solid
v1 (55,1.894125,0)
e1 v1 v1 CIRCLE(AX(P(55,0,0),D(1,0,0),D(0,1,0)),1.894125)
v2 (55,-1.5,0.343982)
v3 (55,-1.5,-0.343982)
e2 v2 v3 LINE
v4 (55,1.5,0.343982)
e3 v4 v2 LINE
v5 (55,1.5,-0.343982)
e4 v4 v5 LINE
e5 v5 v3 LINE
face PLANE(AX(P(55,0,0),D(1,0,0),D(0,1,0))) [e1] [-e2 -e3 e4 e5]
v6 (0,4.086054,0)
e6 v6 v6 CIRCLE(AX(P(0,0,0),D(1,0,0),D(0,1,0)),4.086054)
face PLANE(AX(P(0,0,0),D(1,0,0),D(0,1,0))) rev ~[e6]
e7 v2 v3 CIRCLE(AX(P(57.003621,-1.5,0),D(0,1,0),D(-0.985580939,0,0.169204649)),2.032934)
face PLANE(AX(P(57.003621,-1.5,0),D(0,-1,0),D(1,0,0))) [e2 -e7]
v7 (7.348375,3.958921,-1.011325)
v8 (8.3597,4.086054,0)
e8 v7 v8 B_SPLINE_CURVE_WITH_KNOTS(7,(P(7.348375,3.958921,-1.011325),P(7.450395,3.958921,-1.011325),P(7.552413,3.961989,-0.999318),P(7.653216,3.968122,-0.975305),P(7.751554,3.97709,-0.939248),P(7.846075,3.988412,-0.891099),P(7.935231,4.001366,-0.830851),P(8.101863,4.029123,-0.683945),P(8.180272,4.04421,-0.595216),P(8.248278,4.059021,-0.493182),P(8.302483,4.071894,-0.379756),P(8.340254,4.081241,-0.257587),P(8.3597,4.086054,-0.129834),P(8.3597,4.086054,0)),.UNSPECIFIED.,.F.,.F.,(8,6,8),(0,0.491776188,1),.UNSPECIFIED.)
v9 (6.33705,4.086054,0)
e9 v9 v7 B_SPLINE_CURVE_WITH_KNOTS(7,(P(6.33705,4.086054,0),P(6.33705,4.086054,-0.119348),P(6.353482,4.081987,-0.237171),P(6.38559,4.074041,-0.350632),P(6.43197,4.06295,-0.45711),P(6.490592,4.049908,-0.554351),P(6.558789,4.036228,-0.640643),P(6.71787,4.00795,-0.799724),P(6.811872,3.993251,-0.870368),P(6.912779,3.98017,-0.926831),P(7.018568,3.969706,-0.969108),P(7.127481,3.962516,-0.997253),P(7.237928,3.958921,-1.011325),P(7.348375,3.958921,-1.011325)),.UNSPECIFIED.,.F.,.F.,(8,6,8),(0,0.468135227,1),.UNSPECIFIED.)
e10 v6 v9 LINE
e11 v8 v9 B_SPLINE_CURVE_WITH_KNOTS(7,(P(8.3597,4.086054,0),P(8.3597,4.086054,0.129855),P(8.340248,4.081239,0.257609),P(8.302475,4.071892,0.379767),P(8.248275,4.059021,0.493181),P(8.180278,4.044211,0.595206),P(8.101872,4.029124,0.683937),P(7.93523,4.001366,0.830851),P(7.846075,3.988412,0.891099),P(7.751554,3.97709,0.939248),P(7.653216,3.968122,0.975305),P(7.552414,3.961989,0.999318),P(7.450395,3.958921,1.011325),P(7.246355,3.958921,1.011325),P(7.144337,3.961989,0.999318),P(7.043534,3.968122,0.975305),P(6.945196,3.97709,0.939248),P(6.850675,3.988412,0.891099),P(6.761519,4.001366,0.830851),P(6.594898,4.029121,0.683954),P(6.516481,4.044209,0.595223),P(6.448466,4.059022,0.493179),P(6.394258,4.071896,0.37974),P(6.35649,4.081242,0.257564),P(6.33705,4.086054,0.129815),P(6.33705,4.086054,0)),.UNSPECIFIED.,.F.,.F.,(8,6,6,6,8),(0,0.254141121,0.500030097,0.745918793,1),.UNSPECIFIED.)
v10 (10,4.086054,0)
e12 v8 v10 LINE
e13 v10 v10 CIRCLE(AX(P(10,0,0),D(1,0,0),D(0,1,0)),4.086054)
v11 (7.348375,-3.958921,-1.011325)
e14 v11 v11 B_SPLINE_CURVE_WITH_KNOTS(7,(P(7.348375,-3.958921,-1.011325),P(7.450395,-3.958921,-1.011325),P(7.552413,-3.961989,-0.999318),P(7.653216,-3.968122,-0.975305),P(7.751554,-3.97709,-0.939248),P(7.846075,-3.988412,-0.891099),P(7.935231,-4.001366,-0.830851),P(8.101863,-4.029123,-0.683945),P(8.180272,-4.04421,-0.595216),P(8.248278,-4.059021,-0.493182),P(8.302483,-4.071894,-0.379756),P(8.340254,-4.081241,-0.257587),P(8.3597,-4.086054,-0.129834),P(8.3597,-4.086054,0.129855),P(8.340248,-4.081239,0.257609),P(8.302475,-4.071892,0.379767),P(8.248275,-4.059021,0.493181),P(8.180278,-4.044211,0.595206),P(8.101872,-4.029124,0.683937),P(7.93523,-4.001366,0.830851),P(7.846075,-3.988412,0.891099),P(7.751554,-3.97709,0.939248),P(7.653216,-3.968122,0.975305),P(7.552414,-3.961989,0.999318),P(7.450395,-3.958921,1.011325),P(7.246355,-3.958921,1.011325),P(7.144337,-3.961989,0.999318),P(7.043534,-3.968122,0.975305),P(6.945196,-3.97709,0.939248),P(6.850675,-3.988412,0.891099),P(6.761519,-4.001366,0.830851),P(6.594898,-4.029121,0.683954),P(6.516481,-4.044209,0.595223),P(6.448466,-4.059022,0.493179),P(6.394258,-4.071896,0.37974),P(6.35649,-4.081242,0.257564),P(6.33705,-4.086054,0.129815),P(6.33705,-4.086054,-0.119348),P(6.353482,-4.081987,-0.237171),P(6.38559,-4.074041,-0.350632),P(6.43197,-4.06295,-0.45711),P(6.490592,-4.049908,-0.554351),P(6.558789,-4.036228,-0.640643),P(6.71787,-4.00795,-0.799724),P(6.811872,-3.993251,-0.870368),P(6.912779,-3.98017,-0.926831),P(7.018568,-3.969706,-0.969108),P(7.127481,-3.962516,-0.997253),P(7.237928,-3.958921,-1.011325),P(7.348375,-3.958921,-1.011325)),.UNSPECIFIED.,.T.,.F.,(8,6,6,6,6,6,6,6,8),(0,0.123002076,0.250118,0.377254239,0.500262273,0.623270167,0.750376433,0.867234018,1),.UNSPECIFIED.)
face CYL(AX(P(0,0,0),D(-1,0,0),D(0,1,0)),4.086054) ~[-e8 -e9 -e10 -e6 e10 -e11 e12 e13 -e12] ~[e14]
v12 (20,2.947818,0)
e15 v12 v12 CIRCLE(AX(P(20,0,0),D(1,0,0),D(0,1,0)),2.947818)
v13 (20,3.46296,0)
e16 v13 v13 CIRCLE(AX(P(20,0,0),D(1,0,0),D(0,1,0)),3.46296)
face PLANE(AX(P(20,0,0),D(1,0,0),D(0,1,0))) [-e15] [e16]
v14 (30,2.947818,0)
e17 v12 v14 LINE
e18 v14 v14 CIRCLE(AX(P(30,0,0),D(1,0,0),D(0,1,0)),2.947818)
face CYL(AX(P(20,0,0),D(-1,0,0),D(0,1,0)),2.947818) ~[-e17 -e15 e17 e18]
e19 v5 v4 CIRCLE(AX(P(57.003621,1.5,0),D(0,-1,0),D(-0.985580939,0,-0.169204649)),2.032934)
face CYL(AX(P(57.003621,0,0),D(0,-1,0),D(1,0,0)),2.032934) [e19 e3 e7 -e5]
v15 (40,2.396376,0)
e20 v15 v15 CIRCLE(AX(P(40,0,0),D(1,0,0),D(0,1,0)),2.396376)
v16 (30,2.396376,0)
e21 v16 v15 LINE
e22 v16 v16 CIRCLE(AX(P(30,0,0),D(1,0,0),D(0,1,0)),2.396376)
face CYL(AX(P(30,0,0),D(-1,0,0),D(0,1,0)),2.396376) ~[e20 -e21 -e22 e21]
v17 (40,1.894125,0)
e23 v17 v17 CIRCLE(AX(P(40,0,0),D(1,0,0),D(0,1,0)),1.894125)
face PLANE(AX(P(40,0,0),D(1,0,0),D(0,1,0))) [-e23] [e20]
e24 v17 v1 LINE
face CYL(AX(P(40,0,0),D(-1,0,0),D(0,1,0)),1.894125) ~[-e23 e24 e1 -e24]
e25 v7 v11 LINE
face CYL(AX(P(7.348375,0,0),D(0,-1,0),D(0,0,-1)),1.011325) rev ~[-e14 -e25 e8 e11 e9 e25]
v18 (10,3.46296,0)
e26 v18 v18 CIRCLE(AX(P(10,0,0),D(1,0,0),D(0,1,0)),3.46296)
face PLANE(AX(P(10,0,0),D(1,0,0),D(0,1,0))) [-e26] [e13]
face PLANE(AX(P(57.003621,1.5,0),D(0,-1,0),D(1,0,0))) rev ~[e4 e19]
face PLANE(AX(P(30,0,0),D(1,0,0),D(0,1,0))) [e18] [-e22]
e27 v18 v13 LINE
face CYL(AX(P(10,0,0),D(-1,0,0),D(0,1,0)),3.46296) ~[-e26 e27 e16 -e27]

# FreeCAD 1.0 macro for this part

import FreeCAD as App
import Part
import Sketcher
from FreeCAD import Vector
Q = App.Units.Quantity

doc = App.newDocument("Part")
body = doc.addObject("PartDesign::Body", "Body")

sketch1 = body.newObject("Sketcher::SketchObject", "Sketch")
sketch1.AttachmentSupport = (doc.getObject("YZ_Plane"), [""])
sketch1.MapMode = "FlatFace"
sketch1.addGeometry(Part.Circle(Vector(0, 0, 0), Vector(0, 0, 1), 4.1), False)
sketch1.addConstraint([
    Sketcher.Constraint("Coincident", 0, 3, -1, 1),
    Sketcher.Constraint("Diameter", 0, Q("8.172108 mm")),
])
pad1 = body.newObject("PartDesign::Pad", "Pad")
pad1.Profile = sketch1
pad1.Length = 10

sketch2 = body.newObject("Sketcher::SketchObject", "Sketch001")
sketch2.AttachmentSupport = (doc.getObject("YZ_Plane"), [""])
sketch2.MapMode = "FlatFace"
sketch2.AttachmentOffset = App.Placement(Vector(0, 0, 10), App.Rotation())
sketch2.addGeometry(Part.Circle(Vector(0, 0, 0), Vector(0, 0, 1), 3.5), False)
sketch2.addConstraint([
    Sketcher.Constraint("Coincident", 0, 3, -1, 1),
    Sketcher.Constraint("Diameter", 0, Q("6.92592 mm")),
])
pad2 = body.newObject("PartDesign::Pad", "Pad001")
pad2.Profile = sketch2
pad2.Length = 10

sketch3 = body.newObject("Sketcher::SketchObject", "Sketch002")
sketch3.AttachmentSupport = (doc.getObject("YZ_Plane"), [""])
sketch3.MapMode = "FlatFace"
sketch3.AttachmentOffset = App.Placement(Vector(0, 0, 20), App.Rotation())
sketch3.addGeometry(Part.Circle(Vector(0, 0, 0), Vector(0, 0, 1), 2.9), False)
sketch3.addConstraint([
    Sketcher.Constraint("Coincident", 0, 3, -1, 1),
    Sketcher.Constraint("Diameter", 0, Q("5.895636 mm")),
])
pad3 = body.newObject("PartDesign::Pad", "Pad002")
pad3.Profile = sketch3
pad3.Length = 10

sketch4 = body.newObject("Sketcher::SketchObject", "Sketch003")
sketch4.AttachmentSupport = (doc.getObject("YZ_Plane"), [""])
sketch4.MapMode = "FlatFace"
sketch4.AttachmentOffset = App.Placement(Vector(0, 0, 30), App.Rotation())
sketch4.addGeometry(Part.Circle(Vector(0, 0, 0), Vector(0, 0, 1), 2.4), False)
sketch4.addConstraint([
    Sketcher.Constraint("Coincident", 0, 3, -1, 1),
    Sketcher.Constraint("Diameter", 0, Q("4.792752 mm")),
])
pad4 = body.newObject("PartDesign::Pad", "Pad003")
pad4.Profile = sketch4
pad4.Length = 10

sketch5 = body.newObject("Sketcher::SketchObject", "Sketch004")
sketch5.AttachmentSupport = (doc.getObject("YZ_Plane"), [""])
sketch5.MapMode = "FlatFace"
sketch5.AttachmentOffset = App.Placement(Vector(0, 0, 40), App.Rotation())
sketch5.addGeometry(Part.Circle(Vector(0, 0, 0), Vector(0, 0, 1), 1.9), False)
sketch5.addConstraint([
    Sketcher.Constraint("Coincident", 0, 3, -1, 1),
    Sketcher.Constraint("Diameter", 0, Q("3.78825 mm")),
])
pad5 = body.newObject("PartDesign::Pad", "Pad004")
pad5.Profile = sketch5
pad5.Length = 15

sketch6 = body.newObject("Sketcher::SketchObject", "Sketch005")
sketch6.AttachmentSupport = (doc.getObject("XZ_Plane"), [""])
sketch6.MapMode = "FlatFace"
sketch6.addGeometry(Part.Circle(Vector(57, 0, 0), Vector(0, 0, 1), 2), False)
sketch6.addConstraint([
    Sketcher.Constraint("PointOnObject", 0, 3, -1),
    Sketcher.Constraint("Diameter", 0, Q("4.065868 mm")),
    Sketcher.Constraint("DistanceX", -1, 1, 0, 3, Q("57.003621 mm")),
])
pad6 = body.newObject("PartDesign::Pad", "Pad005")
pad6.Profile = sketch6
pad6.Length = 3
pad6.Midplane = True

sketch7 = body.newObject("Sketcher::SketchObject", "Sketch006")
sketch7.AttachmentSupport = (doc.getObject("XZ_Plane"), [""])
sketch7.MapMode = "FlatFace"
sketch7.addGeometry(Part.Circle(Vector(7.3, 0, 0), Vector(0, 0, 1), 1), False)
sketch7.addConstraint([
    Sketcher.Constraint("PointOnObject", 0, 3, -1),
    Sketcher.Constraint("Diameter", 0, Q("2.02265 mm")),
    Sketcher.Constraint("DistanceX", -1, 1, 0, 3, Q("7.348375 mm")),
])
pocket1 = body.newObject("PartDesign::Pocket", "Pocket")
pocket1.Profile = sketch7
pocket1.Length = 25
pocket1.Midplane = True

doc.recompute()
